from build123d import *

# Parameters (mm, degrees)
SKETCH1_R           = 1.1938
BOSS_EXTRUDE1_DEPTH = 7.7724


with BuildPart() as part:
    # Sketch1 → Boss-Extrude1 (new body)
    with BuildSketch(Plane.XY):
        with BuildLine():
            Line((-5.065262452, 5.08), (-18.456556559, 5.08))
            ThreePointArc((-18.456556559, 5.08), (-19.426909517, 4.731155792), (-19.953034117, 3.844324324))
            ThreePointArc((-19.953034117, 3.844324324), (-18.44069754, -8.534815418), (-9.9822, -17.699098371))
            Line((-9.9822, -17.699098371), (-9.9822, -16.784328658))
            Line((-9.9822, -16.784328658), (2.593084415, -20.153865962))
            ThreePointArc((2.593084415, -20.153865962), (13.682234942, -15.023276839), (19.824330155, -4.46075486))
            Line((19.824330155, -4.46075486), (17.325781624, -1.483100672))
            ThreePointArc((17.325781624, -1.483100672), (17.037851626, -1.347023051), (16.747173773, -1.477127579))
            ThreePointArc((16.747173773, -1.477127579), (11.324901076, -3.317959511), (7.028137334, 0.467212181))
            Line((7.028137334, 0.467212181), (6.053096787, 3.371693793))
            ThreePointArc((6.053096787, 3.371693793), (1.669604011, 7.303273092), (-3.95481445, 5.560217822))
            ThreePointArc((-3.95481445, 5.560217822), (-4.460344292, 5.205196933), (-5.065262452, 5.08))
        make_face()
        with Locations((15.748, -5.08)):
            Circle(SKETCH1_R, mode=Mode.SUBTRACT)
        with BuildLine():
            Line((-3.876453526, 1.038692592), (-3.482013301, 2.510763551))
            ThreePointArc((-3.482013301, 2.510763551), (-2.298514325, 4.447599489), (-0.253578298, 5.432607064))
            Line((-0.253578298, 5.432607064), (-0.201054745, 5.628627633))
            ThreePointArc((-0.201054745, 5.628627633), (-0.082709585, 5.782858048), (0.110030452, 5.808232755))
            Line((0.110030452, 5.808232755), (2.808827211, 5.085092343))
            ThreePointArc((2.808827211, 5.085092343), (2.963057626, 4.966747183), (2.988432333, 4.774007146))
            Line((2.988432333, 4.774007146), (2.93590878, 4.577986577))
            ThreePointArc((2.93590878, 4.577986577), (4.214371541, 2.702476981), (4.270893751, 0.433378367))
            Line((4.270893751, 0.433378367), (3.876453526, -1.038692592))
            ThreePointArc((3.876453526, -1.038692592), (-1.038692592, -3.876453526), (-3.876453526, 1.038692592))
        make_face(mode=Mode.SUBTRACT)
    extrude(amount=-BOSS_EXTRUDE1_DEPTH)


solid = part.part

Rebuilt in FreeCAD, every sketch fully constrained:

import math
import FreeCAD as App
import Part
import Sketcher

V = App.Vector
Q = App.Units.Quantity

doc = App.newDocument("Part")
body = doc.addObject("PartDesign::Body", "Body")

sketch1 = body.newObject("Sketcher::SketchObject", "Sketch")
sketch1.AttachmentSupport = (doc.getObject("XY_Plane"), [""])
sketch1.MapMode = "FlatFace"
sketch1.addGeometry(Part.LineSegment(V(-5.07, 5.08, 0), V(-18.46, 5.08, 0)), False)
sketch1.addGeometry(Part.ArcOfCircle(Part.Circle(V(-18.46, 3.56, 0), V(0, 0, 1), 1.52), math.radians(90), math.radians(169)), False)
sketch1.addGeometry(Part.ArcOfCircle(Part.Circle(V(0, 0, 0), V(0, 0, 1), 20.32), math.radians(169), math.radians(241)), False)
sketch1.addGeometry(Part.LineSegment(V(-9.98, -17.7, 0), V(-9.98, -16.78, 0)), False)
sketch1.addGeometry(Part.LineSegment(V(-9.98, -16.78, 0), V(2.59, -20.15, 0)), False)
sketch1.addGeometry(Part.ArcOfCircle(Part.Circle(V(0, 0, 0), V(0, 0, 1), 20.32), math.radians(-83), math.radians(-13)), False)
sketch1.addGeometry(Part.LineSegment(V(19.82, -4.46, 0), V(17.33, -1.48, 0)), False)
sketch1.addGeometry(Part.ArcOfCircle(Part.Circle(V(17.03, -1.73, 0), V(0, 0, 1), 0.38), math.radians(40), math.radians(139)), False)
sketch1.addGeometry(Part.ArcOfCircle(Part.Circle(V(12.45, 2.29, 0), V(0, 0, 1), 5.71), math.radians(-161), math.radians(-41)), False)
sketch1.addGeometry(Part.LineSegment(V(7.03, 0.47, 0), V(6.05, 3.37, 0)), False)
sketch1.addGeometry(Part.ArcOfCircle(Part.Circle(V(0.39, 1.47, 0), V(0, 0, 1), 5.97), math.radians(19), math.radians(137)), False)
sketch1.addGeometry(Part.ArcOfCircle(Part.Circle(V(-5.07, 6.6, 0), V(0, 0, 1), 1.52), math.radians(-90), math.radians(-43)), False)
sketch1.addGeometry(Part.Circle(V(15.75, -5.08, 0), V(0, 0, 1), 1.19), False)
sketch1.addGeometry(Part.ArcOfCircle(Part.Circle(V(0, 0, 0), V(0, 0, 1), 4.01), math.radians(165), math.radians(345)), False)
sketch1.addGeometry(Part.LineSegment(V(-3.88, 1.04, 0), V(-3.48, 2.51, 0)), False)
sketch1.addGeometry(Part.ArcOfCircle(Part.Circle(V(0.39, 1.47, 0), V(0, 0, 1), 4.01), math.radians(99), math.radians(165)), False)
sketch1.addGeometry(Part.LineSegment(V(-0.25, 5.43, 0), V(-0.2, 5.63, 0)), False)
sketch1.addGeometry(Part.ArcOfCircle(Part.Circle(V(0.04, 5.56, 0), V(0, 0, 1), 0.25), math.radians(75), math.radians(165)), False)
sketch1.addGeometry(Part.LineSegment(V(0.11, 5.81, 0), V(2.81, 5.09, 0)), False)
sketch1.addGeometry(Part.ArcOfCircle(Part.Circle(V(2.74, 4.84, 0), V(0, 0, 1), 0.25), math.radians(-15), math.radians(75)), False)
sketch1.addGeometry(Part.LineSegment(V(2.99, 4.77, 0), V(2.94, 4.58, 0)), False)
sketch1.addGeometry(Part.ArcOfCircle(Part.Circle(V(0.39, 1.47, 0), V(0, 0, 1), 4.01), math.radians(-15), math.radians(51)), False)
sketch1.addGeometry(Part.LineSegment(V(4.27, 0.43, 0), V(3.88, -1.04, 0)), False)
sketch1.addConstraint(Sketcher.Constraint("Tangent", 0, 2, 1, 1))
sketch1.addConstraint(Sketcher.Constraint("Tangent", 1, 2, 2, 1))
sketch1.addConstraint(Sketcher.Constraint("Coincident", 2, 2, 3, 1))
sketch1.addConstraint(Sketcher.Constraint("Coincident", 3, 2, 4, 1))
sketch1.addConstraint(Sketcher.Constraint("Coincident", 4, 2, 5, 1))
sketch1.addConstraint(Sketcher.Constraint("Coincident", 5, 2, 6, 1))
sketch1.addConstraint(Sketcher.Constraint("Tangent", 6, 2, 7, 1))
sketch1.addConstraint(Sketcher.Constraint("Tangent", 7, 2, 8, 2))
sketch1.addConstraint(Sketcher.Constraint("Tangent", 8, 1, 9, 1))
sketch1.addConstraint(Sketcher.Constraint("Tangent", 9, 2, 10, 1))
sketch1.addConstraint(Sketcher.Constraint("Tangent", 10, 2, 11, 2))
sketch1.addConstraint(Sketcher.Constraint("Tangent", 11, 1, 0, 1))
sketch1.addConstraint(Sketcher.Constraint("Tangent", 13, 1, 14, 1))
sketch1.addConstraint(Sketcher.Constraint("Tangent", 14, 2, 15, 2))
sketch1.addConstraint(Sketcher.Constraint("Coincident", 15, 1, 16, 1))
sketch1.addConstraint(Sketcher.Constraint("Tangent", 16, 2, 17, 2))
sketch1.addConstraint(Sketcher.Constraint("Tangent", 17, 1, 18, 1))
sketch1.addConstraint(Sketcher.Constraint("Tangent", 18, 2, 19, 2))
sketch1.addConstraint(Sketcher.Constraint("Tangent", 19, 1, 20, 1))
sketch1.addConstraint(Sketcher.Constraint("Coincident", 20, 2, 21, 2))
sketch1.addConstraint(Sketcher.Constraint("Tangent", 21, 1, 22, 1))
sketch1.addConstraint(Sketcher.Constraint("Tangent", 22, 2, 13, 2))
sketch1.addConstraint(Sketcher.Constraint("Horizontal", 0))
sketch1.addConstraint(Sketcher.Constraint("Vertical", 3))
sketch1.addConstraint(Sketcher.Constraint("Coincident", 2, 3, -1, 1))
sketch1.addConstraint(Sketcher.Constraint("Coincident", 5, 3, -1, 1))
sketch1.addConstraint(Sketcher.Constraint("Coincident", 13, 3, -1, 1))
sketch1.addConstraint(Sketcher.Constraint("Coincident", 15, 3, 10, 3))
sketch1.addConstraint(Sketcher.Constraint("Coincident", 21, 3, 10, 3))
sketch1.addConstraint(Sketcher.Constraint("Equal", 2, 5))
sketch1.addConstraint(Sketcher.Constraint("Equal", 1, 11))
sketch1.addConstraint(Sketcher.Constraint("Equal", 13, 15))
sketch1.addConstraint(Sketcher.Constraint("Equal", 17, 19))
sketch1.addConstraint(Sketcher.Constraint("Equal", 15, 21))
sketch1.addConstraint(Sketcher.Constraint("Perpendicular", 4, 14))
sketch1.addConstraint(Sketcher.Constraint("Parallel", 14, 16))
sketch1.addConstraint(Sketcher.Constraint("Perpendicular", 16, 18))
sketch1.addConstraint(Sketcher.Constraint("Perpendicular", 18, 20))
sketch1.addConstraint(Sketcher.Constraint("Equal", 16, 20))
sketch1.addConstraint(Sketcher.Constraint("Radius", 2, Q("0.8 in")))
sketch1.addConstraint(Sketcher.Constraint("Radius", 1, Q("0.06 in")))
sketch1.addConstraint(Sketcher.Constraint("Radius", 17, Q("0.01 in")))
sketch1.addConstraint(Sketcher.Constraint("Diameter", 12, Q("0.094 in")))
sketch1.addConstraint(Sketcher.Constraint("Angle", 4, Q("-15 deg")))
sketch1.addConstraint(Sketcher.Constraint("Angle", 6, Q("130 deg")))
sketch1.addConstraint(Sketcher.Constraint("Radius", 7, Q("0.015 in")))
sketch1.addConstraint(Sketcher.Constraint("Radius", 8, Q("0.225 in")))
sketch1.addConstraint(Sketcher.Constraint("Radius", 10, Q("0.235 in")))
sketch1.addConstraint(Sketcher.Constraint("Radius", 13, Q("0.158 in")))
sketch1.addConstraint(Sketcher.Constraint("DistanceY", 12, 3, -1, 1, Q("0.2 in")))
sketch1.addConstraint(Sketcher.Constraint("DistanceY", -1, 1, 0, 2, Q("0.2 in")))
sketch1.addConstraint(Sketcher.Constraint("Distance", 14, Q("0.06 in")))
sketch1.addConstraint(Sketcher.Constraint("Distance", 18, Q("0.11 in")))
sketch1.addConstraint(Sketcher.Constraint("DistanceX", -1, 1, 8, 3, Q("0.49 in")))
sketch1.addConstraint(Sketcher.Constraint("DistanceY", -1, 1, 8, 3, Q("0.09 in")))
sketch1.addConstraint(Sketcher.Constraint("DistanceX", -1, 1, 12, 3, Q("0.62 in")))
sketch1.addConstraint(Sketcher.Constraint("DistanceX", 2, 2, -1, 1, Q("0.393 in")))
sketch1.addConstraint(Sketcher.Constraint("DistanceY", 3, 1, 3, 2, Q("0.91477 mm")))
sketch1.addConstraint(Sketcher.Constraint("DistanceY", 6, 2, -1, 1, Q("1.483101 mm")))
sketch1.addConstraint(Sketcher.Constraint("DistanceY", 20, 2, 17, 3, Q("0.984901 mm")))
pad1 = body.newObject("PartDesign::Pad", "Pad")
pad1.Profile = sketch1
pad1.Length = Q("0.306 in")
pad1.Reversed = True

doc.recompute()
